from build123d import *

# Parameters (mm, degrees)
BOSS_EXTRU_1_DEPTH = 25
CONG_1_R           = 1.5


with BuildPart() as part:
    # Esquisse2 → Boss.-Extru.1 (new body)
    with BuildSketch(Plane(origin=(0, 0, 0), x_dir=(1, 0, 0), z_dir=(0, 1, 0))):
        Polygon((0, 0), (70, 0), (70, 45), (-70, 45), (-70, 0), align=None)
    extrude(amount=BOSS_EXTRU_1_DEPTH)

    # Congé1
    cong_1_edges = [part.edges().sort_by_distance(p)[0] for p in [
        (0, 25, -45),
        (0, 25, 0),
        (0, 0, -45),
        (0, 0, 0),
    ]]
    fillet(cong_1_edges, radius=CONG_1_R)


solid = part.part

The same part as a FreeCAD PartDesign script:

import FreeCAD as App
import Part
import Sketcher

V = App.Vector


def edges_at(feature, points):
    """Names of the edges that pass closest to the given points."""
    edges = feature.Shape.Edges
    near = lambda p: min(range(len(edges)), key=lambda i: edges[i].distToShape(Part.Vertex(*p))[0])
    return sorted({f"Edge{near(p) + 1}" for p in points})


def add_polygon(sketch, points):
    """Adds a closed chain of lines whose ends are joined by coincident constraints."""
    first, n = sketch.GeometryCount, len(points)
    for a, b in zip(points, points[1:] + points[:1]):
        sketch.addGeometry(Part.LineSegment(App.Vector(*a, 0), App.Vector(*b, 0)), False)
    for i in range(n):
        sketch.addConstraint(Sketcher.Constraint("Coincident", first + i, 2, first + (i + 1) % n, 1))

doc = App.newDocument("Part")
params = doc.addObject("Spreadsheet::Sheet", "Params")
for row, (alias, value) in enumerate([
    ("sketch1_width", "140 mm"),
    ("sketch1_height", "45 mm"),
    ("pad1_length", "25 mm"),
    ("fillet_radius", "1.5 mm"),
], start=1):
    params.set(f"A{row}", alias)
    params.set(f"B{row}", "=" + value)
    params.setAlias(f"B{row}", alias)

body = doc.addObject("PartDesign::Body", "Body")

# Sketch on XZ plane
sketch1 = body.newObject("Sketcher::SketchObject", "Sketch")
sketch1.AttachmentSupport = (doc.getObject("XZ_Plane"), [""])
sketch1.MapMode = "FlatFace"
add_polygon(sketch1, [(70, 0), (70, -45), (-70, -45), (-70, 0)])  # lines 0-3
sketch1.addConstraint([
    Sketcher.Constraint("Vertical", 0),
    Sketcher.Constraint("Horizontal", 1),
    Sketcher.Constraint("Vertical", 2),
    Sketcher.Constraint("Horizontal", 3),
    Sketcher.Constraint("Symmetric", 2, 2, 3, 2, -1, 1),
    Sketcher.Constraint("DistanceX", 1, 2, 1, 1, 140.0),
    Sketcher.Constraint("DistanceY", 0, 2, 0, 1, 45.0),
])
sketch1.setExpression("Constraints[9]", "Params.sketch1_width")
sketch1.setExpression("Constraints[10]", "Params.sketch1_height")
pad1 = body.newObject("PartDesign::Pad", "Pad")
pad1.Profile = sketch1
pad1.setExpression("Length", "Params.pad1_length")
pad1.Reversed = True
doc.recompute()

fillet = body.newObject("PartDesign::Fillet", "Fillet")
fillet.Base = (pad1, edges_at(pad1, [
    (0, 25, -45),
    (0, 25, 0),
    (0, 0, -45),
    (0, 0, 0),
]))
fillet.setExpression("Radius", "Params.fillet_radius")

doc.recompute()
